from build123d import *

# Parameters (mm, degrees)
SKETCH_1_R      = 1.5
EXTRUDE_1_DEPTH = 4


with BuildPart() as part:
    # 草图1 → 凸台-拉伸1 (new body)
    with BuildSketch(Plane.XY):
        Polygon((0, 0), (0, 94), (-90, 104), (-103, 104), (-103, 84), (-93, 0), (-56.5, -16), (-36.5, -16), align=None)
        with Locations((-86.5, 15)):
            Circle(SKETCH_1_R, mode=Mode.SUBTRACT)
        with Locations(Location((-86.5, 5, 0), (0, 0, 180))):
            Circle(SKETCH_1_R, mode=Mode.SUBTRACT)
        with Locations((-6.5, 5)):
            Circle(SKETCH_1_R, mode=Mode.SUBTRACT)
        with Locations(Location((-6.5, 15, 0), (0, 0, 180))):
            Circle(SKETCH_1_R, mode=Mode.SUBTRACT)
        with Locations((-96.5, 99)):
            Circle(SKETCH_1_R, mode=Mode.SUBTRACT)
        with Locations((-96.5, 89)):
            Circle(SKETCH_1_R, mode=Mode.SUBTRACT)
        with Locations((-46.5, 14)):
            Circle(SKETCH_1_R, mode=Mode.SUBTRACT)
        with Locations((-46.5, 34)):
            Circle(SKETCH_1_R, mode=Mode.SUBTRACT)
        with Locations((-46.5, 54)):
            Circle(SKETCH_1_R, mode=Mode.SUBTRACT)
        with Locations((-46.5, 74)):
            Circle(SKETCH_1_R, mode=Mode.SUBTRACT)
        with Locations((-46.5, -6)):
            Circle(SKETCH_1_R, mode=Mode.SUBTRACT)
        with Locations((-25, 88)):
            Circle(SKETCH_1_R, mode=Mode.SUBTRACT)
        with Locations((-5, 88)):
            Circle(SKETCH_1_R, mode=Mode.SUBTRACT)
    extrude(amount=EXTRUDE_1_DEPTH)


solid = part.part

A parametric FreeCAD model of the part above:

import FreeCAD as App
import Part
import Sketcher


def add_polygon(sketch, points):
    """Adds a closed chain of lines whose ends are joined by coincident constraints."""
    first, n = sketch.GeometryCount, len(points)
    for a, b in zip(points, points[1:] + points[:1]):
        sketch.addGeometry(Part.LineSegment(App.Vector(*a, 0), App.Vector(*b, 0)), False)
    for i in range(n):
        sketch.addConstraint(Sketcher.Constraint("Coincident", first + i, 2, first + (i + 1) % n, 1))

doc = App.newDocument("Part")
body = doc.addObject("PartDesign::Body", "Body")

sketch1 = doc.addObject("Sketcher::SketchObject", "Sketch")
body.addObject(sketch1)
sketch1.AttachmentSupport = (doc.XY_Plane, [""])
sketch1.MapMode = "FlatFace"
add_polygon(sketch1, [(0, 0), (0, 94), (-90, 104), (-103, 104), (-103, 84), (-93, 0), (-56.5, -16), (-36.5, -16)])
sketch1.addGeometry(Part.Circle(App.Vector(-86.5, 5, 0), App.Vector(0, 0, 1), 1.5), False)
sketch1.addGeometry(Part.Circle(App.Vector(-86.5, 15, 0), App.Vector(0, 0, 1), 1.5), False)
sketch1.addGeometry(Part.Circle(App.Vector(-46.5, -6, 0), App.Vector(0, 0, 1), 1.5), False)
sketch1.addGeometry(Part.Circle(App.Vector(-46.5, 14, 0), App.Vector(0, 0, 1), 1.5), False)
sketch1.addGeometry(Part.Circle(App.Vector(-6.5, 5, 0), App.Vector(0, 0, 1), 1.5), False)
sketch1.addGeometry(Part.Circle(App.Vector(-6.5, 15, 0), App.Vector(0, 0, 1), 1.5), False)
sketch1.addGeometry(Part.Circle(App.Vector(-46.5, 34, 0), App.Vector(0, 0, 1), 1.5), False)
sketch1.addGeometry(Part.Circle(App.Vector(-96.5, 89, 0), App.Vector(0, 0, 1), 1.5), False)
sketch1.addGeometry(Part.Circle(App.Vector(-96.5, 99, 0), App.Vector(0, 0, 1), 1.5), False)
sketch1.addGeometry(Part.Circle(App.Vector(-46.5, 54, 0), App.Vector(0, 0, 1), 1.5), False)
sketch1.addGeometry(Part.Circle(App.Vector(-46.5, 74, 0), App.Vector(0, 0, 1), 1.5), False)
sketch1.addGeometry(Part.Circle(App.Vector(-25, 88, 0), App.Vector(0, 0, 1), 1.5), False)
sketch1.addGeometry(Part.Circle(App.Vector(-5, 88, 0), App.Vector(0, 0, 1), 1.5), False)
sketch1.addConstraint([
    Sketcher.Constraint("Vertical", 0),
    Sketcher.Constraint("Horizontal", 2),
    Sketcher.Constraint("Vertical", 3),
    Sketcher.Constraint("Horizontal", 6),
    Sketcher.Constraint("Coincident", 7, 2, -1, 1),
    Sketcher.Constraint("Equal", 8, 9),
    Sketcher.Constraint("Equal", 9, 10),
    Sketcher.Constraint("Equal", 10, 11),
    Sketcher.Constraint("Equal", 11, 12),
    Sketcher.Constraint("Equal", 12, 13),
    Sketcher.Constraint("Equal", 13, 14),
    Sketcher.Constraint("Equal", 14, 15),
    Sketcher.Constraint("Equal", 15, 16),
    Sketcher.Constraint("Equal", 16, 17),
    Sketcher.Constraint("Equal", 17, 18),
    Sketcher.Constraint("Equal", 18, 19),
    Sketcher.Constraint("Equal", 19, 20),
    Sketcher.Constraint("PointOnObject", 4, 2, -1),
    Sketcher.Constraint("Horizontal", 8, 3, 12, 3),
    Sketcher.Constraint("Horizontal", 9, 3, 13, 3),
    Sketcher.Constraint("Horizontal", 19, 3, 20, 3),
    Sketcher.Constraint("Vertical", 8, 3, 9, 3),
    Sketcher.Constraint("Vertical", 10, 3, 11, 3),
    Sketcher.Constraint("Vertical", 12, 3, 13, 3),
    Sketcher.Constraint("Vertical", 11, 3, 14, 3),
    Sketcher.Constraint("Vertical", 15, 3, 16, 3),
    Sketcher.Constraint("Vertical", 14, 3, 17, 3),
    Sketcher.Constraint("Vertical", 17, 3, 18, 3),
    Sketcher.Constraint("Equal", 6, 3),
    Sketcher.Constraint("Equal", 5, 7),
    Sketcher.Constraint("Diameter", 8, 3.0),
    Sketcher.Constraint("DistanceX", 2, 2, 2, 1, 13.0),
    Sketcher.Constraint("DistanceX", 6, 1, 6, 2, 20.0),
    Sketcher.Constraint("DistanceY", 0, 1, 0, 2, 94.0),
    Sketcher.Constraint("DistanceY", -1, 1, 8, 3, 5.0),
    Sketcher.Constraint("DistanceY", -1, 1, 9, 3, 15.0),
    Sketcher.Constraint("DistanceY", 10, 3, -1, 1, 6.0),
    Sketcher.Constraint("DistanceY", -1, 1, 11, 3, 14.0),
    Sketcher.Constraint("DistanceY", -1, 1, 14, 3, 34.0),
    Sketcher.Constraint("DistanceY", -1, 1, 15, 3, 89.0),
    Sketcher.Constraint("DistanceY", -1, 1, 16, 3, 99.0),
    Sketcher.Constraint("DistanceY", -1, 1, 17, 3, 54.0),
    Sketcher.Constraint("DistanceY", -1, 1, 18, 3, 74.0),
    Sketcher.Constraint("DistanceX", 19, 3, -1, 1, 25.0),
    Sketcher.Constraint("DistanceY", -1, 1, 19, 3, 88.0),
    Sketcher.Constraint("DistanceX", 20, 3, -1, 1, 5.0),
    Sketcher.Constraint("DistanceX", 1, 2, -1, 1, 90.0),
    Sketcher.Constraint("DistanceY", -1, 1, 1, 2, 104.0),
    Sketcher.Constraint("DistanceX", 4, 2, -1, 1, 93.0),
    Sketcher.Constraint("DistanceY", 5, 2, -1, 1, 16.0),
    Sketcher.Constraint("DistanceX", 8, 3, 10, 3, 40.0),
    Sketcher.Constraint("DistanceX", 11, 3, 12, 3, 40.0),
    Sketcher.Constraint("DistanceX", 15, 3, 14, 3, 50.0),
    Sketcher.Constraint("DistanceX", 5, 2, 10, 3, 10.0),
])
pad1 = doc.addObject("PartDesign::Pad", "Pad")
body.addObject(pad1)
pad1.Profile = sketch1
pad1.Length = 4

doc.recompute()
